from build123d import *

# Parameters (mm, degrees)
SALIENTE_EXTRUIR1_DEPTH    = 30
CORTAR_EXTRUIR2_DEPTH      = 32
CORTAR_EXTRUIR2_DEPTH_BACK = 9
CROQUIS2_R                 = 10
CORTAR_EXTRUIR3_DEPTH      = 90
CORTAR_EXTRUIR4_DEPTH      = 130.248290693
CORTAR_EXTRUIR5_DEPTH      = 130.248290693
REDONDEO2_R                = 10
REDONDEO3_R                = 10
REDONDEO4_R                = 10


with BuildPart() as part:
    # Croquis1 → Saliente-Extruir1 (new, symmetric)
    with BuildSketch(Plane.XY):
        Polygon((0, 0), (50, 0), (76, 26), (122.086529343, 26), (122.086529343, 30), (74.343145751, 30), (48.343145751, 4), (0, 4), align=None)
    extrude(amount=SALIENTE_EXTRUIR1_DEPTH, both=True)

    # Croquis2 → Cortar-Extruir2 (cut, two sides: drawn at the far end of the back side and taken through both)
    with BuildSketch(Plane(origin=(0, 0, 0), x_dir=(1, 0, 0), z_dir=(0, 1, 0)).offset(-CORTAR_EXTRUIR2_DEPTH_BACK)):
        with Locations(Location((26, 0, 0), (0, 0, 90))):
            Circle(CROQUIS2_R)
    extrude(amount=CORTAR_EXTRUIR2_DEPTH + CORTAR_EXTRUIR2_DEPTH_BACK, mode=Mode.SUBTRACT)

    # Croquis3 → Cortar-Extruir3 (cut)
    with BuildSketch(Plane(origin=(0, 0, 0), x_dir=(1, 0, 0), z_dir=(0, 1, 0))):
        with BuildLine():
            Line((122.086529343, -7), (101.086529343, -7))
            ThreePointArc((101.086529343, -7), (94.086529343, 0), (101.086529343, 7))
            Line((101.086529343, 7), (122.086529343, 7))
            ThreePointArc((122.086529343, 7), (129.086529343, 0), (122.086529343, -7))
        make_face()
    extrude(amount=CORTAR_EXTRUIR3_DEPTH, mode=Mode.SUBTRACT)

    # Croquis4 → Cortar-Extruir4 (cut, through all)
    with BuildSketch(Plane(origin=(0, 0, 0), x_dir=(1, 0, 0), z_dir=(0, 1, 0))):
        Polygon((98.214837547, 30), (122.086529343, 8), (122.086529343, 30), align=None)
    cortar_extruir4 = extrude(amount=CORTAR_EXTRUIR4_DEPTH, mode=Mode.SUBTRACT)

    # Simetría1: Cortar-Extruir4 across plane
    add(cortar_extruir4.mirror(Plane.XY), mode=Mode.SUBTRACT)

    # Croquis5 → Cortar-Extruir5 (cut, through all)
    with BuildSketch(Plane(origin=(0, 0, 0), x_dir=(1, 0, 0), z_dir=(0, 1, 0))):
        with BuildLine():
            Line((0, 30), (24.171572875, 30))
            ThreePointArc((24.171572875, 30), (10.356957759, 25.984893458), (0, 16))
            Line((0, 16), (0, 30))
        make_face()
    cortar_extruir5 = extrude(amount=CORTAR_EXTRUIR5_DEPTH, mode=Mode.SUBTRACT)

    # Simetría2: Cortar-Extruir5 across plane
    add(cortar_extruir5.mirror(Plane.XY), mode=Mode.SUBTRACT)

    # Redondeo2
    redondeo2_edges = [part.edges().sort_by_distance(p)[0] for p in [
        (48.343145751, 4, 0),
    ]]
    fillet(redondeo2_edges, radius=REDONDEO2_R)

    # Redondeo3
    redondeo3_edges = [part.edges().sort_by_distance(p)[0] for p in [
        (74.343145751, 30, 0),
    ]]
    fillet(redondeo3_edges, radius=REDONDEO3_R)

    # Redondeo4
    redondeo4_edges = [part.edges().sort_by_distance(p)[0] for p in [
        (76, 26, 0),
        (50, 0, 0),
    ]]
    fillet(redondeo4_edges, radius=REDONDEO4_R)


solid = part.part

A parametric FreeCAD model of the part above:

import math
import FreeCAD as App
import Part
import Sketcher

V = App.Vector
Q = App.Units.Quantity


def edges_at(feature, points):
    """Names of the edges that pass closest to the given points."""
    edges = feature.Shape.Edges
    near = lambda p: min(range(len(edges)), key=lambda i: edges[i].distToShape(Part.Vertex(*p))[0])
    return sorted({f"Edge{near(p) + 1}" for p in points})

doc = App.newDocument("Part")
body = doc.addObject("PartDesign::Body", "Body")

# Sketch on XY plane
sketch1 = body.newObject("Sketcher::SketchObject", "Sketch")
sketch1.AttachmentSupport = (doc.getObject("XY_Plane"), [""])
sketch1.MapMode = "FlatFace"
sketch1.addGeometry([
    Part.LineSegment(V(0, 0, 0), V(50, 0, 0)),  # 0
    Part.LineSegment(V(50, 0, 0), V(76, 26, 0)),  # 1
    Part.LineSegment(V(76, 26, 0), V(122.086529, 26, 0)),  # 2
    Part.LineSegment(V(122.086529, 26, 0), V(122.086529, 30, 0)),  # 3
    Part.LineSegment(V(122.086529, 30, 0), V(74.343146, 30, 0)),  # 4
    Part.LineSegment(V(74.343146, 30, 0), V(48.343146, 4, 0)),  # 5
    Part.LineSegment(V(48.343146, 4, 0), V(0, 4, 0)),  # 6
    Part.LineSegment(V(0, 4, 0), V(0, 0, 0)),  # 7
], False)
sketch1.addConstraint([
    Sketcher.Constraint("Coincident", 0, 2, 1, 1),
    Sketcher.Constraint("Coincident", 1, 2, 2, 1),
    Sketcher.Constraint("Coincident", 2, 2, 3, 1),
    Sketcher.Constraint("Coincident", 3, 2, 4, 1),
    Sketcher.Constraint("Coincident", 4, 2, 5, 1),
    Sketcher.Constraint("Coincident", 5, 2, 6, 1),
    Sketcher.Constraint("Coincident", 6, 2, 7, 1),
    Sketcher.Constraint("Coincident", 7, 2, 0, 1),
    Sketcher.Constraint("Horizontal", 0),
    Sketcher.Constraint("Horizontal", 2),
    Sketcher.Constraint("Vertical", 3),
    Sketcher.Constraint("Horizontal", 4),
    Sketcher.Constraint("Horizontal", 6),
    Sketcher.Constraint("Vertical", 7),
    Sketcher.Constraint("Coincident", 7, 2, -1, 1),
    Sketcher.Constraint("Parallel", 1, 5),
    Sketcher.Constraint("Equal", 3, 7),
    Sketcher.Constraint("DistanceX", 0, 1, 0, 2, 50.0),
    Sketcher.Constraint("DistanceY", 3, 1, 3, 2, 4.0),
    Sketcher.Constraint("Angle", 1, Q("45 deg")),
    Sketcher.Constraint("DistanceX", -1, 1, 1, 2, 76.0),
    Sketcher.Constraint("DistanceX", 2, 1, 2, 2, 46.086529),
    Sketcher.Constraint("DistanceX", 4, 2, 4, 1, 47.743384),
])
pad1 = body.newObject("PartDesign::Pad", "Pad")
pad1.Profile = sketch1
pad1.Length = 60
pad1.Midplane = True

# Sketch on XZ plane
sketch2 = body.newObject("Sketcher::SketchObject", "Sketch001")
sketch2.AttachmentSupport = (doc.getObject("XZ_Plane"), [""])
sketch2.MapMode = "FlatFace"
sketch2.addGeometry(Part.Circle(V(26, 0, 0), V(0, 0, 1), 10), False)
sketch2.addConstraint([
    Sketcher.Constraint("PointOnObject", 0, 3, -1),
    Sketcher.Constraint("Diameter", 0, 20.0),
    Sketcher.Constraint("DistanceX", -1, 1, 0, 3, 26.0),
])
pocket1 = body.newObject("PartDesign::Pocket", "Pocket")
pocket1.Profile = sketch2
pocket1.Type = "ThroughAll"
pocket1.Midplane = True

# Sketch on XZ plane
sketch3 = body.newObject("Sketcher::SketchObject", "Sketch002")
sketch3.AttachmentSupport = (doc.getObject("XZ_Plane"), [""])
sketch3.MapMode = "FlatFace"
sketch3.addGeometry([
    Part.LineSegment(V(101.086529, 7, 0), V(122.086529, 7, 0)),
    Part.ArcOfCircle(Part.Circle(V(122.086529, 0, 0), V(0, 0, 1), 7), math.radians(-90), math.radians(90)),
    Part.LineSegment(V(122.086529, -7, 0), V(101.086529, -7, 0)),
    Part.ArcOfCircle(Part.Circle(V(101.086529, 0, 0), V(0, 0, 1), 7), math.radians(90), math.radians(270)),
], False)
sketch3.addConstraint([
    Sketcher.Constraint("Tangent", 0, 2, 1, 2),
    Sketcher.Constraint("Tangent", 1, 1, 2, 1),
    Sketcher.Constraint("Tangent", 2, 2, 3, 2),
    Sketcher.Constraint("Tangent", 3, 1, 0, 1),
    Sketcher.Constraint("Horizontal", 0),
    Sketcher.Constraint("Horizontal", 2),
    Sketcher.Constraint("PointOnObject", 1, 3, -1),
    Sketcher.Constraint("Radius", 1, 7.0),
    Sketcher.Constraint("DistanceX", 0, 1, 0, 2, 21.0),
    Sketcher.Constraint("DistanceX", -1, 1, 1, 3, 122.086529),
])
pocket2 = body.newObject("PartDesign::Pocket", "Pocket001")
pocket2.Profile = sketch3
pocket2.Length = 90

# Sketch on XZ plane
sketch4 = body.newObject("Sketcher::SketchObject", "Sketch003")
sketch4.AttachmentSupport = (doc.getObject("XZ_Plane"), [""])
sketch4.MapMode = "FlatFace"
sketch4.addGeometry([
    Part.LineSegment(V(98.214838, -30, 0), V(122.086529, -8, 0)),
    Part.LineSegment(V(122.086529, -8, 0), V(122.086529, -30, 0)),
    Part.LineSegment(V(122.086529, -30, 0), V(98.214838, -30, 0)),
], False)
sketch4.addConstraint([
    Sketcher.Constraint("Coincident", 0, 2, 1, 1),
    Sketcher.Constraint("Coincident", 1, 2, 2, 1),
    Sketcher.Constraint("Coincident", 2, 2, 0, 1),
    Sketcher.Constraint("Vertical", 1),
    Sketcher.Constraint("Horizontal", 2),
    Sketcher.Constraint("DistanceY", 1, 2, 1, 1, 22.0),
    Sketcher.Constraint("DistanceY", 0, 2, -1, 1, 8.0),
    Sketcher.Constraint("DistanceX", 2, 2, 2, 1, 23.871692),
    Sketcher.Constraint("DistanceX", -1, 1, 0, 2, 122.086529),
])
pocket3 = body.newObject("PartDesign::Pocket", "Pocket002")
pocket3.Profile = sketch4
pocket3.Type = "ThroughAll"
doc.recompute()

mirrored = body.newObject("PartDesign::Mirrored", "Mirrored")
mirrored.Originals = [pocket3]
mirrored.MirrorPlane = (doc.getObject("XY_Plane"), [""])
body.Tip = mirrored

# Sketch on XZ plane
sketch5 = body.newObject("Sketcher::SketchObject", "Sketch004")
sketch5.AttachmentSupport = (doc.getObject("XZ_Plane"), [""])
sketch5.MapMode = "FlatFace"
sketch5.addGeometry([
    Part.LineSegment(V(24.171573, -30, 0), V(0, -30, 0)),
    Part.LineSegment(V(0, -30, 0), V(0, -16, 0)),
    Part.ArcOfCircle(Part.Circle(V(25.392817, -0.024868, 0), V(0, 0, 1), 30), math.radians(-147.825175), math.radians(-92.333049)),
], False)
sketch5.addConstraint([
    Sketcher.Constraint("Coincident", 0, 2, 1, 1),
    Sketcher.Constraint("Coincident", 1, 2, 2, 1),
    Sketcher.Constraint("Coincident", 2, 2, 0, 1),
    Sketcher.Constraint("Horizontal", 0),
    Sketcher.Constraint("Vertical", 1),
    Sketcher.Constraint("PointOnObject", 0, 2, -2),
    Sketcher.Constraint("Radius", 2, 30.0),
    Sketcher.Constraint("DistanceY", 1, 1, 1, 2, 14.0),
    Sketcher.Constraint("DistanceY", 0, 2, -1, 1, 30.0),
    Sketcher.Constraint("DistanceX", 0, 2, 0, 1, 24.171573),
])
pocket4 = body.newObject("PartDesign::Pocket", "Pocket003")
pocket4.Profile = sketch5
pocket4.Type = "ThroughAll"
doc.recompute()

mirrored2 = body.newObject("PartDesign::Mirrored", "Mirrored001")
mirrored2.Originals = [pocket4]
mirrored2.MirrorPlane = (doc.getObject("XY_Plane"), [""])
body.Tip = mirrored2
doc.recompute()

fillet = body.newObject("PartDesign::Fillet", "Fillet")
fillet.Base = (mirrored2, edges_at(mirrored2, [(48.343, 4, 0)]))
fillet.Radius = 10
doc.recompute()

fillet2 = body.newObject("PartDesign::Fillet", "Fillet001")
fillet2.Base = (fillet, edges_at(fillet, [(74.343, 30, 0)]))
fillet2.Radius = 10
doc.recompute()

fillet3 = body.newObject("PartDesign::Fillet", "Fillet002")
fillet3.Base = (fillet2, edges_at(fillet2, [(76, 26, 0), (50, 0, 0)]))
fillet3.Radius = 10

doc.recompute()
